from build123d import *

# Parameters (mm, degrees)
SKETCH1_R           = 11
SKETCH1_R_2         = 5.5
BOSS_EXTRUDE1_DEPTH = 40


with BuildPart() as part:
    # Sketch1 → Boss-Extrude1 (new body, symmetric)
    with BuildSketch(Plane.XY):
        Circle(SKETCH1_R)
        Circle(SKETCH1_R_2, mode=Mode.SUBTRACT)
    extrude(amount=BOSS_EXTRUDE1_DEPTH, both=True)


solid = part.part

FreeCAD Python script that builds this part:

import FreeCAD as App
import Part
import Sketcher

doc = App.newDocument("Part")
body = doc.addObject("PartDesign::Body", "Body")

sketch1 = body.newObject("Sketcher::SketchObject", "Sketch")
sketch1.AttachmentSupport = (doc.getObject("XY_Plane"), [""])
sketch1.MapMode = "FlatFace"
sketch1.addGeometry([
    Part.Circle(App.Vector(0, 0, 0), App.Vector(0, 0, 1), 11),
    Part.Circle(App.Vector(0, 0, 0), App.Vector(0, 0, 1), 6),
], False)
sketch1.addConstraint([
    Sketcher.Constraint("Coincident", 0, 3, -1, 1),
    Sketcher.Constraint("Coincident", 1, 3, -1, 1),
    Sketcher.Constraint("Diameter", 0, 22.0),
    Sketcher.Constraint("Diameter", 1, 11.0),
])
pad1 = body.newObject("PartDesign::Pad", "Pad")
pad1.Profile = sketch1
pad1.Length = 80
pad1.Midplane = True

doc.recompute()
